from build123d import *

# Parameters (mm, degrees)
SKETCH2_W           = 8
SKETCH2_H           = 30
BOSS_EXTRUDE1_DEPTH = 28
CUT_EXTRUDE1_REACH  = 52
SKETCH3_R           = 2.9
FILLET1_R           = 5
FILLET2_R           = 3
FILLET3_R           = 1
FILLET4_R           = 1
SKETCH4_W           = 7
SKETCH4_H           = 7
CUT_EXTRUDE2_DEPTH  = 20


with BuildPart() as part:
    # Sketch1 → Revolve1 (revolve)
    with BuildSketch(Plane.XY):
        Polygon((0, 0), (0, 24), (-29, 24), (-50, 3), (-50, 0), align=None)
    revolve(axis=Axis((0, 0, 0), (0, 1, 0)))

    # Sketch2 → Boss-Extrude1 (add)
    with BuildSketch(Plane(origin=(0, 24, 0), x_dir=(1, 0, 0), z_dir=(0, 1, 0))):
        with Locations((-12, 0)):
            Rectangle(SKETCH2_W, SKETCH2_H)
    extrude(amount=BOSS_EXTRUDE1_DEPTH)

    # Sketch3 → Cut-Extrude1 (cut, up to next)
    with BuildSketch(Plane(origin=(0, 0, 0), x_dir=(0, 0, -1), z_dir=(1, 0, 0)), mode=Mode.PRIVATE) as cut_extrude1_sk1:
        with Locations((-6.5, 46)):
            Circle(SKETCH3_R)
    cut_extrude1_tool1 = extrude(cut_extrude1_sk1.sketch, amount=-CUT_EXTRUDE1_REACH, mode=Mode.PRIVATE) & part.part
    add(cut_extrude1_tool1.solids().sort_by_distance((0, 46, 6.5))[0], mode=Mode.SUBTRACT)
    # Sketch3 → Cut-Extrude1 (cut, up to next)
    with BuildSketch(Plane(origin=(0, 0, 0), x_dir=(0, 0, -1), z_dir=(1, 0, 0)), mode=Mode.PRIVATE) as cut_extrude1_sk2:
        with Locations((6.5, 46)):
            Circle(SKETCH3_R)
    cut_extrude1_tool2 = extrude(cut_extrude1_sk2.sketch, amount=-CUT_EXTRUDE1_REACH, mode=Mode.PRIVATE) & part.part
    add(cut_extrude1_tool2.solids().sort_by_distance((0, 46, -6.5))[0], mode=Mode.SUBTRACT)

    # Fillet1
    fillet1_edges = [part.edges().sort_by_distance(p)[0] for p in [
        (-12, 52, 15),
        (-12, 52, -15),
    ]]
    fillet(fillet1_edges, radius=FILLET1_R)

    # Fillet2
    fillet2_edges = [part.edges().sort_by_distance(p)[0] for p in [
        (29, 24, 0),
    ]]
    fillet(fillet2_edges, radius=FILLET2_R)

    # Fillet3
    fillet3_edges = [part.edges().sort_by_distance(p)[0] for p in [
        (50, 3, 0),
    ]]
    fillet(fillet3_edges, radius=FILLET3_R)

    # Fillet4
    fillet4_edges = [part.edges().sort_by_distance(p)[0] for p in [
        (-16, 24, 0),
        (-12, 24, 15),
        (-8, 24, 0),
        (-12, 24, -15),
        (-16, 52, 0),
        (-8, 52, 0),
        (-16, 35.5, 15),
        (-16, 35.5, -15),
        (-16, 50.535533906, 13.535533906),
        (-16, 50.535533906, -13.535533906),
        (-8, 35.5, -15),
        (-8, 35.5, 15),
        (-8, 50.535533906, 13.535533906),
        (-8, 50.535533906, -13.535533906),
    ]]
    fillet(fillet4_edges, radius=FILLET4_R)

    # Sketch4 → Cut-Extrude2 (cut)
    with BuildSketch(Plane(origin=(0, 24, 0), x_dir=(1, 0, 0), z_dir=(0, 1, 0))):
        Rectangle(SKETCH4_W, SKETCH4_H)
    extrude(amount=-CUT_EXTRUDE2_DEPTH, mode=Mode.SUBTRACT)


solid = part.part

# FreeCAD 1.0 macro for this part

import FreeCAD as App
import Part
import Sketcher

V = App.Vector
Q = App.Units.Quantity


def edges_at(feature, points):
    """Names of the edges that pass closest to the given points."""
    edges = feature.Shape.Edges
    near = lambda p: min(range(len(edges)), key=lambda i: edges[i].distToShape(Part.Vertex(*p))[0])
    return sorted({f"Edge{near(p) + 1}" for p in points})

doc = App.newDocument("Part")
params = doc.addObject("Spreadsheet::Sheet", "Params")
for row, (alias, value) in enumerate([
    ("sketch1_width", "29 mm"),
    ("sketch1_width2", "50 mm"),
    ("sketch1_height", "24 mm"),
    ("sketch1_height2", "3 mm"),
    ("revolution_angle", "360 deg"),
    ("sketch2_width", "8 mm"),
    ("sketch2_height", "30 mm"),
    ("pad1_length", "28 mm"),
    ("sketch3_diameter", "5.8 mm"),
    ("pocket1_length", "16 mm"),
    ("sketch4_diameter", "5.8 mm"),
    ("pocket2_length", "16 mm"),
    ("fillet_radius", "5 mm"),
    ("fillet2_radius", "3 mm"),
    ("fillet3_radius", "1 mm"),
    ("fillet4_radius", "1 mm"),
    ("sketch5_width", "7 mm"),
    ("pocket3_length", "20 mm"),
], start=1):
    params.set(f"A{row}", alias)
    params.set(f"B{row}", "=" + value)
    params.setAlias(f"B{row}", alias)

body = doc.addObject("PartDesign::Body", "Body")

sketch1 = body.newObject("Sketcher::SketchObject", "Sketch")
sketch1.AttachmentSupport = (doc.getObject("XY_Plane"), [""])
sketch1.MapMode = "FlatFace"
sketch1.addGeometry([
    Part.LineSegment(V(0, 0, 0), V(0, 24, 0)),
    Part.LineSegment(V(0, 24, 0), V(-29, 24, 0)),
    Part.LineSegment(V(-29, 24, 0), V(-50, 3, 0)),
    Part.LineSegment(V(-50, 3, 0), V(-50, 0, 0)),
    Part.LineSegment(V(-50, 0, 0), V(0, 0, 0)),
], False)
sketch1.addConstraint([
    Sketcher.Constraint("Coincident", 0, 2, 1, 1),
    Sketcher.Constraint("Coincident", 1, 2, 2, 1),
    Sketcher.Constraint("Coincident", 2, 2, 3, 1),
    Sketcher.Constraint("Coincident", 3, 2, 4, 1),
    Sketcher.Constraint("Coincident", 4, 2, 0, 1),
    Sketcher.Constraint("Vertical", 0),
    Sketcher.Constraint("Horizontal", 1),
    Sketcher.Constraint("Vertical", 3),
    Sketcher.Constraint("Horizontal", 4),
    Sketcher.Constraint("Coincident", 4, 2, -1, 1),
    Sketcher.Constraint("DistanceX", 1, 2, 1, 1, Q("29 mm")),
    Sketcher.Constraint("DistanceX", 4, 1, 4, 2, Q("50 mm")),
    Sketcher.Constraint("DistanceY", 0, 1, 0, 2, Q("24 mm")),
    Sketcher.Constraint("DistanceY", 3, 2, 3, 1, Q("3 mm")),
])
sketch1.setExpression("Constraints[10]", "Params.sketch1_width")
sketch1.setExpression("Constraints[11]", "Params.sketch1_width2")
sketch1.setExpression("Constraints[12]", "Params.sketch1_height")
sketch1.setExpression("Constraints[13]", "Params.sketch1_height2")
revolution = body.newObject("PartDesign::Revolution", "Revolution")
revolution.Profile = sketch1
revolution.ReferenceAxis = (sketch1, ["V_Axis"])
revolution.setExpression("Angle", "Params.revolution_angle")

sketch2 = body.newObject("Sketcher::SketchObject", "Sketch001")
sketch2.AttachmentSupport = (doc.getObject("XZ_Plane"), [""])
sketch2.MapMode = "FlatFace"
sketch2.AttachmentOffset = App.Placement(V(0, 0, -24), App.Rotation())
sketch2.addGeometry([
    Part.LineSegment(V(-16, -15, 0), V(-16, 15, 0)),
    Part.LineSegment(V(-16, 15, 0), V(-8, 15, 0)),
    Part.LineSegment(V(-8, 15, 0), V(-8, -15, 0)),
    Part.LineSegment(V(-8, -15, 0), V(-16, -15, 0)),
], False)
sketch2.addConstraint([
    Sketcher.Constraint("Coincident", 0, 2, 1, 1),
    Sketcher.Constraint("Coincident", 1, 2, 2, 1),
    Sketcher.Constraint("Coincident", 2, 2, 3, 1),
    Sketcher.Constraint("Coincident", 3, 2, 0, 1),
    Sketcher.Constraint("Vertical", 0),
    Sketcher.Constraint("Horizontal", 1),
    Sketcher.Constraint("Vertical", 2),
    Sketcher.Constraint("Horizontal", 3),
    Sketcher.Constraint("DistanceX", 1, 1, 1, 2, Q("8 mm")),
    Sketcher.Constraint("DistanceY", 0, 1, 0, 2, Q("30 mm")),
    Sketcher.Constraint("DistanceX", 0, 2, -1, 1, Q("16 mm")),
    Sketcher.Constraint("DistanceY", -1, 1, 0, 2, Q("15 mm")),
])
sketch2.setExpression("Constraints[8]", "Params.sketch2_width")
sketch2.setExpression("Constraints[9]", "Params.sketch2_height")
pad1 = body.newObject("PartDesign::Pad", "Pad")
pad1.Profile = sketch2
pad1.setExpression("Length", "Params.pad1_length")
pad1.Reversed = True

sketch3 = body.newObject("Sketcher::SketchObject", "Sketch002")
sketch3.AttachmentSupport = (doc.getObject("YZ_Plane"), [""])
sketch3.MapMode = "FlatFace"
sketch3.addGeometry(Part.Circle(V(46, 6.5, 0), V(0, 0, 1), 2.9), False)
sketch3.addConstraint([
    Sketcher.Constraint("Diameter", 0, Q("5.8 mm")),
    Sketcher.Constraint("DistanceX", -1, 1, 0, 3, Q("46 mm")),
    Sketcher.Constraint("DistanceY", -1, 1, 0, 3, Q("6.5 mm")),
])
sketch3.setExpression("Constraints[0]", "Params.sketch3_diameter")
pocket1 = body.newObject("PartDesign::Pocket", "Pocket")
pocket1.Profile = sketch3
pocket1.setExpression("Length", "Params.pocket1_length")

sketch4 = body.newObject("Sketcher::SketchObject", "Sketch003")
sketch4.AttachmentSupport = (doc.getObject("YZ_Plane"), [""])
sketch4.MapMode = "FlatFace"
sketch4.addGeometry(Part.Circle(V(46, -6.5, 0), V(0, 0, 1), 2.9), False)
sketch4.addConstraint([
    Sketcher.Constraint("Diameter", 0, Q("5.8 mm")),
    Sketcher.Constraint("DistanceX", -1, 1, 0, 3, Q("46 mm")),
    Sketcher.Constraint("DistanceY", 0, 3, -1, 1, Q("6.5 mm")),
])
sketch4.setExpression("Constraints[0]", "Params.sketch4_diameter")
pocket2 = body.newObject("PartDesign::Pocket", "Pocket001")
pocket2.Profile = sketch4
pocket2.setExpression("Length", "Params.pocket2_length")
doc.recompute()

fillet = body.newObject("PartDesign::Fillet", "Fillet")
fillet.Base = (pocket2, edges_at(pocket2, [(-12, 52, 15), (-12, 52, -15)]))
fillet.setExpression("Radius", "Params.fillet_radius")
doc.recompute()

fillet2 = body.newObject("PartDesign::Fillet", "Fillet001")
fillet2.Base = (fillet, edges_at(fillet, [(29, 24, 0)]))
fillet2.setExpression("Radius", "Params.fillet2_radius")
doc.recompute()

fillet3 = body.newObject("PartDesign::Fillet", "Fillet002")
fillet3.Base = (fillet2, edges_at(fillet2, [(50, 3, 0)]))
fillet3.setExpression("Radius", "Params.fillet3_radius")
doc.recompute()

fillet4 = body.newObject("PartDesign::Fillet", "Fillet003")
fillet4.Base = (fillet3, edges_at(fillet3, [
    (-16, 24, 0),
    (-12, 24, 15),
    (-8, 24, 0),
    (-12, 24, -15),
    (-16, 52, 0),
    (-8, 52, 0),
    (-16, 35.5, 15),
    (-16, 35.5, -15),
    (-16, 50.536, 13.536),
    (-16, 50.536, -13.536),
    (-8, 35.5, -15),
    (-8, 35.5, 15),
    (-8, 50.536, 13.536),
    (-8, 50.536, -13.536),
]))
fillet4.setExpression("Radius", "Params.fillet4_radius")

sketch5 = body.newObject("Sketcher::SketchObject", "Sketch004")
sketch5.AttachmentSupport = (doc.getObject("XZ_Plane"), [""])
sketch5.MapMode = "FlatFace"
sketch5.AttachmentOffset = App.Placement(V(0, 0, -24), App.Rotation())
sketch5.addGeometry([
    Part.LineSegment(V(-3.5, -3.5, 0), V(-3.5, 3.5, 0)),
    Part.LineSegment(V(-3.5, 3.5, 0), V(3.5, 3.5, 0)),
    Part.LineSegment(V(3.5, 3.5, 0), V(3.5, -3.5, 0)),
    Part.LineSegment(V(3.5, -3.5, 0), V(-3.5, -3.5, 0)),
], False)
sketch5.addConstraint([
    Sketcher.Constraint("Coincident", 0, 2, 1, 1),
    Sketcher.Constraint("Coincident", 1, 2, 2, 1),
    Sketcher.Constraint("Coincident", 2, 2, 3, 1),
    Sketcher.Constraint("Coincident", 3, 2, 0, 1),
    Sketcher.Constraint("Vertical", 0),
    Sketcher.Constraint("Horizontal", 1),
    Sketcher.Constraint("Vertical", 2),
    Sketcher.Constraint("Horizontal", 3),
    Sketcher.Constraint("Symmetric", 0, 2, 2, 2, -1, 1),
    Sketcher.Constraint("Equal", 3, 0),
    Sketcher.Constraint("DistanceX", 1, 1, 1, 2, Q("7 mm")),
])
sketch5.setExpression("Constraints[10]", "Params.sketch5_width")
pocket3 = body.newObject("PartDesign::Pocket", "Pocket002")
pocket3.Profile = sketch5
pocket3.setExpression("Length", "Params.pocket3_length")
pocket3.Reversed = True

doc.recompute()
